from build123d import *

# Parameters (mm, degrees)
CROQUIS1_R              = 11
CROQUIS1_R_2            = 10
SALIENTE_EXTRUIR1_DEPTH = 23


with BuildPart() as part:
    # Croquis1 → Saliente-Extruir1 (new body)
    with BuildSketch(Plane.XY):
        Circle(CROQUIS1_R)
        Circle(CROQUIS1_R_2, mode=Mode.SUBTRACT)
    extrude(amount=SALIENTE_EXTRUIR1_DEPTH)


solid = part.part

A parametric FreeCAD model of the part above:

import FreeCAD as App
import Part
import Sketcher
Q = App.Units.Quantity

doc = App.newDocument("Part")
body = doc.addObject("PartDesign::Body", "Body")

# Sketch on XY plane
sketch1 = body.newObject("Sketcher::SketchObject", "Sketch")
sketch1.AttachmentSupport = (doc.getObject("XY_Plane"), [""])
sketch1.MapMode = "FlatFace"
sketch1.addGeometry(Part.Circle(App.Vector(0, 0, 0), App.Vector(0, 0, 1), 11), False)
sketch1.addGeometry(Part.Circle(App.Vector(0, 0, 0), App.Vector(0, 0, 1), 10), False)
sketch1.addConstraint(Sketcher.Constraint("Coincident", 0, 3, -1, 1))
sketch1.addConstraint(Sketcher.Constraint("Coincident", 1, 3, -1, 1))
sketch1.addConstraint(Sketcher.Constraint("Diameter", 0, Q("22 mm")))
sketch1.addConstraint(Sketcher.Constraint("Diameter", 1, Q("20 mm")))
pad1 = body.newObject("PartDesign::Pad", "Pad")
pad1.Profile = sketch1
pad1.Length = 23

doc.recompute()
